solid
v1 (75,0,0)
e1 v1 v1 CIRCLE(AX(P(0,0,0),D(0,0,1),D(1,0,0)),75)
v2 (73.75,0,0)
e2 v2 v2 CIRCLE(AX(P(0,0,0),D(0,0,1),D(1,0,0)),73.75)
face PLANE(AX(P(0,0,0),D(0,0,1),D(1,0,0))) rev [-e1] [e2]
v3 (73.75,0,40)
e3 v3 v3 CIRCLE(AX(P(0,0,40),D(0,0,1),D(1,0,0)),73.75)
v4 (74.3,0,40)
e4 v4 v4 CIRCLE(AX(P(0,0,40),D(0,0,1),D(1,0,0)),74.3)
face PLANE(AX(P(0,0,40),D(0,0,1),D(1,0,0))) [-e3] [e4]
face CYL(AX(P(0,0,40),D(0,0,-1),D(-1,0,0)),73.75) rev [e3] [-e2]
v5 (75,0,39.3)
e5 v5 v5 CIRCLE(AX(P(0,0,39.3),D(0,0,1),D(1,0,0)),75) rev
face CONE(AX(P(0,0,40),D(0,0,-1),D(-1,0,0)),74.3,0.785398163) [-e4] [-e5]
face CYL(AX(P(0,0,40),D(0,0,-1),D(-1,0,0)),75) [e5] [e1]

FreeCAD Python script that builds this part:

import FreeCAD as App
import Part
import Sketcher

V = App.Vector


def edges_at(feature, points):
    """Names of the edges that pass closest to the given points."""
    edges = feature.Shape.Edges
    near = lambda p: min(range(len(edges)), key=lambda i: edges[i].distToShape(Part.Vertex(*p))[0])
    return sorted({f"Edge{near(p) + 1}" for p in points})

doc = App.newDocument("Part")
body = doc.addObject("PartDesign::Body", "Body")

# Sketch on XY plane
sketch1 = doc.addObject("Sketcher::SketchObject", "Sketch")
body.addObject(sketch1)
sketch1.AttachmentSupport = (doc.XY_Plane, [""])
sketch1.MapMode = "FlatFace"
sketch1.addGeometry([
    Part.Circle(V(0, 0, 0), V(0, 0, 1), 75),
    Part.Circle(V(0, 0, 0), V(0, 0, 1), 73.75),
], False)
sketch1.addConstraint([
    Sketcher.Constraint("Coincident", 0, 3, -1, 1),
    Sketcher.Constraint("Coincident", 1, 3, -1, 1),
    Sketcher.Constraint("Diameter", 0, 150.0),
    Sketcher.Constraint("Diameter", 1, 147.5),
])
pad1 = doc.addObject("PartDesign::Pad", "Pad")
body.addObject(pad1)
pad1.Profile = sketch1
pad1.Length = 40
doc.recompute()

chamfer = doc.addObject("PartDesign::Chamfer", "Chamfer")
body.addObject(chamfer)
chamfer.Base = (pad1, edges_at(pad1, [(-75, 0, 40)]))
chamfer.Size = 0.7

doc.recompute()
